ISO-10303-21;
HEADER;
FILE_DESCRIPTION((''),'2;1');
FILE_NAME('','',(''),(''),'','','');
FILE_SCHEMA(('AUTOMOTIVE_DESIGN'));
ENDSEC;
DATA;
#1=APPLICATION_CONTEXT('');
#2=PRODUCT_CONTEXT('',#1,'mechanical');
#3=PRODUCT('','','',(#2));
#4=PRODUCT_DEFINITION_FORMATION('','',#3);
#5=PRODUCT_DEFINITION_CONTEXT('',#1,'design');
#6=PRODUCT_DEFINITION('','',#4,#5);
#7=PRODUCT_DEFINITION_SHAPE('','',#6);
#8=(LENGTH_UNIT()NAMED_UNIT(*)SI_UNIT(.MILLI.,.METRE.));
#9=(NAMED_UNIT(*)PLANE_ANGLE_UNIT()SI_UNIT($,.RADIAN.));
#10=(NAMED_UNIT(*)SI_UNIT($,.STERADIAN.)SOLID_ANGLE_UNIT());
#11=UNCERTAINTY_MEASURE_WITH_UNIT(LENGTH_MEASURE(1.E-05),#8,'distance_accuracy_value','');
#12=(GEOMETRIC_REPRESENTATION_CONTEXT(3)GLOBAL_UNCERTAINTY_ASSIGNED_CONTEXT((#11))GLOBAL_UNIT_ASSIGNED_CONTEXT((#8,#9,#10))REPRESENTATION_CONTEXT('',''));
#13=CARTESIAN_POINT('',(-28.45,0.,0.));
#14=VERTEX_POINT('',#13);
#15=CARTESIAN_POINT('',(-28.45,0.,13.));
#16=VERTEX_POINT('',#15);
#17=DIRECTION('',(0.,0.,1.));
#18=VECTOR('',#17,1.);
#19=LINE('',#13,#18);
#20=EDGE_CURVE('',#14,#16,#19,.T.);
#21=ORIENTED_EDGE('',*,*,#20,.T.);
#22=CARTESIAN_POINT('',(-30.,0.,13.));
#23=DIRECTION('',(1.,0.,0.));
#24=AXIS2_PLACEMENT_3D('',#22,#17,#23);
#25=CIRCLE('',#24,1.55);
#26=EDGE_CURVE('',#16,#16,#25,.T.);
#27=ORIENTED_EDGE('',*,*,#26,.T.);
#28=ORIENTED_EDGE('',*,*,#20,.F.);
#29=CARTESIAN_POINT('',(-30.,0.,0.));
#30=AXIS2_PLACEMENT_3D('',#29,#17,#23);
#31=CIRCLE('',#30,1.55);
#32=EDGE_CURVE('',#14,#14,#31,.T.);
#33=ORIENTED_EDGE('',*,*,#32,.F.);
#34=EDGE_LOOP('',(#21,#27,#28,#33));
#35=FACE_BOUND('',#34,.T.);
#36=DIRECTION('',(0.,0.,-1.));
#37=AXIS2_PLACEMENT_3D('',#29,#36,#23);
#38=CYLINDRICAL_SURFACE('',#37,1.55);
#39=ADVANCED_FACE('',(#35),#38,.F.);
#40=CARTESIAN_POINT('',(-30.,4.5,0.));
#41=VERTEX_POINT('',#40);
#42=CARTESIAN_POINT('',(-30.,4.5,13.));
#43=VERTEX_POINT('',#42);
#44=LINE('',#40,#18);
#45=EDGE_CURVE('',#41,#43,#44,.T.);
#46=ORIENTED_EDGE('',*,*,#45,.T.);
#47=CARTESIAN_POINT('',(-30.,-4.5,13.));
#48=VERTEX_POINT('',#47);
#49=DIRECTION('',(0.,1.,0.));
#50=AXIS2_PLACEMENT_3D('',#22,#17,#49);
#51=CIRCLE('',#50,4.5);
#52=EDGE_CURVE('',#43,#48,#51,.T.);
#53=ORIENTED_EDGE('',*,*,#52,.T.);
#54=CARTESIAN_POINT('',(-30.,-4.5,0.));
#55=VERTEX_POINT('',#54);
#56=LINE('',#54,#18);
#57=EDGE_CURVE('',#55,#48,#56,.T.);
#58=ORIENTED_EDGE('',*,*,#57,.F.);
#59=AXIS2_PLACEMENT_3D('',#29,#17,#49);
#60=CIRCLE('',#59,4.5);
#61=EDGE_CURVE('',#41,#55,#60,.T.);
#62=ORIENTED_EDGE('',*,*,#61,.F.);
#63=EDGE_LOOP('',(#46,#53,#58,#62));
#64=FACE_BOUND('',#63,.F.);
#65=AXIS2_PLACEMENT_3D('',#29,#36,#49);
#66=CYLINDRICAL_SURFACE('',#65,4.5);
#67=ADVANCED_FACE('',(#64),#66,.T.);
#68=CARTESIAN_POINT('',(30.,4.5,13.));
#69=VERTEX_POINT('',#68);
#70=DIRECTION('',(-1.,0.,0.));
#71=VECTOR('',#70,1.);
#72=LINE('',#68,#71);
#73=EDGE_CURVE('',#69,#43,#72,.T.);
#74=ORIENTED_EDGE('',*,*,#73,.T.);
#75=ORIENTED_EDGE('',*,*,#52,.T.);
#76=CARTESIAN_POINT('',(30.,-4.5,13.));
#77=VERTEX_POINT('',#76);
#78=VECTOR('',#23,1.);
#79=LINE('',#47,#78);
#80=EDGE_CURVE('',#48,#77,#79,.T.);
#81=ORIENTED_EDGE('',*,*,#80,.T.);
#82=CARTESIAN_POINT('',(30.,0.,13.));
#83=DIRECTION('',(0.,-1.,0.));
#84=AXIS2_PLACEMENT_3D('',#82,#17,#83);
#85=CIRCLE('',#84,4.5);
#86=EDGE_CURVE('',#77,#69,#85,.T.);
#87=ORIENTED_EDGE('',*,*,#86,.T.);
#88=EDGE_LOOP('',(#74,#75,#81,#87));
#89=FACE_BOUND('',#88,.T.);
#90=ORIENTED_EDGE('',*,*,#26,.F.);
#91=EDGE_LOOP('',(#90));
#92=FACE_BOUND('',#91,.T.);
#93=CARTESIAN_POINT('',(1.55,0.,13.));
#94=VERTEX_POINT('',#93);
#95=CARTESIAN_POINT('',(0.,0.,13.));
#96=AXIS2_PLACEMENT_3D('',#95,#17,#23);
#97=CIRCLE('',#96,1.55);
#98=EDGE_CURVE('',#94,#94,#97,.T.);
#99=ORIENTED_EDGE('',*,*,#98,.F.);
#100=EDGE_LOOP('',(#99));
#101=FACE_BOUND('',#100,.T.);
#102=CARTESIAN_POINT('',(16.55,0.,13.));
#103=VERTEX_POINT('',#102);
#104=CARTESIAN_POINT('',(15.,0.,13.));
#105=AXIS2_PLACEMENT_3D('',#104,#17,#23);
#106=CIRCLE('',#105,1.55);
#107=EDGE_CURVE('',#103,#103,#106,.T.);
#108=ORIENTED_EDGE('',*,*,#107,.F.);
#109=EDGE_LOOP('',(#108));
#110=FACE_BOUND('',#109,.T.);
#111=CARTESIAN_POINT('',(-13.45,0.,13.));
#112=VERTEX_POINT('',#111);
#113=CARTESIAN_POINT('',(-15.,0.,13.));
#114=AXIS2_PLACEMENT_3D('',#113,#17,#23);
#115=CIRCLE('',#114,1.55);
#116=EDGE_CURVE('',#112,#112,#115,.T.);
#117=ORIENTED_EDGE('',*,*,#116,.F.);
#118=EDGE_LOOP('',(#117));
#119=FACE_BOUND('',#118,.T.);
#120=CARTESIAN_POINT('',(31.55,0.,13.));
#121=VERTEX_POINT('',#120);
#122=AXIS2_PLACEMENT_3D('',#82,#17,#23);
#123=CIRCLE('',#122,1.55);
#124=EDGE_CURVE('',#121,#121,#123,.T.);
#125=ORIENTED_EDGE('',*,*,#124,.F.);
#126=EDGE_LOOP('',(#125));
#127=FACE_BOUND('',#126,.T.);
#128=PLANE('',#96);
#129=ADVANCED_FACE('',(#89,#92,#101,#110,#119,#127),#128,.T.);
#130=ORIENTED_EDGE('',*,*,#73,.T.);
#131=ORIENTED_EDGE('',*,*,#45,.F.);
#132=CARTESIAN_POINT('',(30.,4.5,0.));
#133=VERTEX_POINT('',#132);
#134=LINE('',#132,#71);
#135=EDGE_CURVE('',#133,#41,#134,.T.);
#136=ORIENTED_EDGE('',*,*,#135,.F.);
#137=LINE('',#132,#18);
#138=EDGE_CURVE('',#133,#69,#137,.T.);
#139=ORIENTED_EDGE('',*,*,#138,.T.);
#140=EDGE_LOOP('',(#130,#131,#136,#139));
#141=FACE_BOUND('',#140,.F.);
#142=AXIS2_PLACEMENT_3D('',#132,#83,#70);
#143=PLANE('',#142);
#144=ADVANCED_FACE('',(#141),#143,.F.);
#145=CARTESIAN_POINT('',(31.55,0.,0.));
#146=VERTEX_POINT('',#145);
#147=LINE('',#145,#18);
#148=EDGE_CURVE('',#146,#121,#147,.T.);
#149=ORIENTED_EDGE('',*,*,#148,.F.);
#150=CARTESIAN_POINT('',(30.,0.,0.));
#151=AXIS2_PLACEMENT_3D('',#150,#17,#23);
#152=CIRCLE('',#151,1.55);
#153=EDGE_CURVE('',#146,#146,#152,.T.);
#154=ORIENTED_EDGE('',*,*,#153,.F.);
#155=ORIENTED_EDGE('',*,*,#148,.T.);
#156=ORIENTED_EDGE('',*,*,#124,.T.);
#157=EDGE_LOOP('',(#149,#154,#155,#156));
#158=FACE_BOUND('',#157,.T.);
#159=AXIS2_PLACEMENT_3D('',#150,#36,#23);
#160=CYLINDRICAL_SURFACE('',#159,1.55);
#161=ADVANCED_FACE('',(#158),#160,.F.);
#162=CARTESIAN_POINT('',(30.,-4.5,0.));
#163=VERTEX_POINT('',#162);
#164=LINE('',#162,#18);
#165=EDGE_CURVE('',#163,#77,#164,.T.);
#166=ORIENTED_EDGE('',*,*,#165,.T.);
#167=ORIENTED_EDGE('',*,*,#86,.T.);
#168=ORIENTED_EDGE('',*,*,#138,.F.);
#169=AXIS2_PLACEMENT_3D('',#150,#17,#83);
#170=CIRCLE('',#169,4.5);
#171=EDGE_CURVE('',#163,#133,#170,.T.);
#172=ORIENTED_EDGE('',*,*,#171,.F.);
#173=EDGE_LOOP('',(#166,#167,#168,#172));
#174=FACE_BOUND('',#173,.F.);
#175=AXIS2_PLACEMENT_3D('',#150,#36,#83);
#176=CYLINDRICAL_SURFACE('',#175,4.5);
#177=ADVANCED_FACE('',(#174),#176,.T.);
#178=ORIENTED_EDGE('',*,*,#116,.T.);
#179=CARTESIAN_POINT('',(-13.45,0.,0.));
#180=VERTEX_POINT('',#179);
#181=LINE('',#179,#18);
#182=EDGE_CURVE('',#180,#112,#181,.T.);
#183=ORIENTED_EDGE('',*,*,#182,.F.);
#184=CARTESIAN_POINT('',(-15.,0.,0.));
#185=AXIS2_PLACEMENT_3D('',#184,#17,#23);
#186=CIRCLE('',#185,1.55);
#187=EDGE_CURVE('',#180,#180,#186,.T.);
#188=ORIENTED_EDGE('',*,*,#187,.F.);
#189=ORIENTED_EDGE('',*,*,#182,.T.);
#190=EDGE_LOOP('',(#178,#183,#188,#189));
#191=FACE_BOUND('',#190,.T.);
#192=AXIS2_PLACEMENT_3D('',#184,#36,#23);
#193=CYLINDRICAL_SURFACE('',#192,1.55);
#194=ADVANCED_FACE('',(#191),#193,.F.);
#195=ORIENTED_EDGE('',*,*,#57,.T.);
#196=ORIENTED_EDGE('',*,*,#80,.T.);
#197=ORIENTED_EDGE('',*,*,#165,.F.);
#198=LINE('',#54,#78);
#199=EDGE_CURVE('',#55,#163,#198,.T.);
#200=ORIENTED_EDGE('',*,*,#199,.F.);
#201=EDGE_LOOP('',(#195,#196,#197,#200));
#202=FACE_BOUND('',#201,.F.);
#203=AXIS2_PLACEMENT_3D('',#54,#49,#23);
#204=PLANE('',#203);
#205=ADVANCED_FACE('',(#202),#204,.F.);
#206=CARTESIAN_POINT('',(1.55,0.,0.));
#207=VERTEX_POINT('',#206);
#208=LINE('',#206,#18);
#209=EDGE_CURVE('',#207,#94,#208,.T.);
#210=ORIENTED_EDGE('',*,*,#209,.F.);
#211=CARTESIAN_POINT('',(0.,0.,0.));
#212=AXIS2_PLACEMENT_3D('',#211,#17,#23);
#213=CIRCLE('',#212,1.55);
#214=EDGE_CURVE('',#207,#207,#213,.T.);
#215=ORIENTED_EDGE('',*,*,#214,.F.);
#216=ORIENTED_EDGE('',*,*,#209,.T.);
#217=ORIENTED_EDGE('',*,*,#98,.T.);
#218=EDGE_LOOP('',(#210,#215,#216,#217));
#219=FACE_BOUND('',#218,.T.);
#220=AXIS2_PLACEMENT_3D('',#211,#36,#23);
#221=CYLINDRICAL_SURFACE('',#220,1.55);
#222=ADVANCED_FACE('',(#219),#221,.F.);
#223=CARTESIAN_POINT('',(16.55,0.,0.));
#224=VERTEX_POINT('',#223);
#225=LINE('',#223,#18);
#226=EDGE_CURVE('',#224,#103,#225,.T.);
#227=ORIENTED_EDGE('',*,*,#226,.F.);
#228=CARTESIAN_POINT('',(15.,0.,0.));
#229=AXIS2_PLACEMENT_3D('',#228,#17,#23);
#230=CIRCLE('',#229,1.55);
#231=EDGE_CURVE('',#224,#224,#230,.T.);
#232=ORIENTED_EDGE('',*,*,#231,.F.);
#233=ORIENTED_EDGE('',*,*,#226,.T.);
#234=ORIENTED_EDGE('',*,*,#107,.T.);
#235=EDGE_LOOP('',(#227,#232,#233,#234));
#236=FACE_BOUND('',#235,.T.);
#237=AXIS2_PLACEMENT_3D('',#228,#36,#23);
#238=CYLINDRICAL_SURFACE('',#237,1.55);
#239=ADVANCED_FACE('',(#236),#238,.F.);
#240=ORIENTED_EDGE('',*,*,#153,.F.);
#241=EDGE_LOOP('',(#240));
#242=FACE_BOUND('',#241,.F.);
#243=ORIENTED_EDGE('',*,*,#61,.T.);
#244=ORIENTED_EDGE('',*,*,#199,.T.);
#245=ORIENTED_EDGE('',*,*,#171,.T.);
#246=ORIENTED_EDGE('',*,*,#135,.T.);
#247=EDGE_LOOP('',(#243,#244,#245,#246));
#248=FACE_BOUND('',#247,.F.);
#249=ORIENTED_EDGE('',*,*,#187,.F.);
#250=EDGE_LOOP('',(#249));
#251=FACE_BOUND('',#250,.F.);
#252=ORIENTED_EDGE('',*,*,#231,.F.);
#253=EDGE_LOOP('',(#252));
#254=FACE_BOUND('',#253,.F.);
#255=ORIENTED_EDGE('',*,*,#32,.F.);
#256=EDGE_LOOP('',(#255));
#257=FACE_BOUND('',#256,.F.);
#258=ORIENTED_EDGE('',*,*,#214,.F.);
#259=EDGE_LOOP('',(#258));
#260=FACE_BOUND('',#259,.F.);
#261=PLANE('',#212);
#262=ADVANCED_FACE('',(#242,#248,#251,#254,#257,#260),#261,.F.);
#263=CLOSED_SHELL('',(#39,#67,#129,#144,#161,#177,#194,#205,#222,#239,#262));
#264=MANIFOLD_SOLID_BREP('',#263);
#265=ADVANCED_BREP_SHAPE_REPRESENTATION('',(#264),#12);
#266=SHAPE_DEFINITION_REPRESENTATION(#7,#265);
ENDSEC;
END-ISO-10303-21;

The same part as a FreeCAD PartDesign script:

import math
import FreeCAD as App
import Part
import Sketcher

doc = App.newDocument("Part")
body = doc.addObject("PartDesign::Body", "Body")

# Sketch on XY plane
sketch1 = doc.addObject("Sketcher::SketchObject", "Sketch")
body.addObject(sketch1)
sketch1.AttachmentSupport = (doc.XY_Plane, [""])
sketch1.MapMode = "FlatFace"
sketch1.addGeometry([
    Part.ArcOfCircle(Part.Circle(App.Vector(-30, 0, 0), App.Vector(0, 0, 1), 4.5), math.radians(90), math.radians(270)),  # 0
    Part.LineSegment(App.Vector(-30, -4.5, 0), App.Vector(30, -4.5, 0)),  # 1
    Part.ArcOfCircle(Part.Circle(App.Vector(30, 0, 0), App.Vector(0, 0, 1), 4.5), math.radians(-90), math.radians(90)),  # 2
    Part.LineSegment(App.Vector(30, 4.5, 0), App.Vector(-30, 4.5, 0)),  # 3
    Part.Circle(App.Vector(-30, 0, 0), App.Vector(0, 0, 1), 1.6),  # 4
    Part.Circle(App.Vector(-15, 0, 0), App.Vector(0, 0, 1), 1.6),  # 5
    Part.Circle(App.Vector(0, 0, 0), App.Vector(0, 0, 1), 1.6),  # 6
    Part.Circle(App.Vector(15, 0, 0), App.Vector(0, 0, 1), 1.6),  # 7
    Part.Circle(App.Vector(30, 0, 0), App.Vector(0, 0, 1), 1.6),  # 8
], False)
sketch1.addConstraint([
    Sketcher.Constraint("Tangent", 0, 2, 1, 1),
    Sketcher.Constraint("Tangent", 1, 2, 2, 1),
    Sketcher.Constraint("Tangent", 2, 2, 3, 1),
    Sketcher.Constraint("Tangent", 3, 2, 0, 1),
    Sketcher.Constraint("Horizontal", 1),
    Sketcher.Constraint("Horizontal", 3),
    Sketcher.Constraint("Coincident", 6, 3, -1, 1),
    Sketcher.Constraint("Coincident", 4, 3, 0, 3),
    Sketcher.Constraint("Coincident", 8, 3, 2, 3),
    Sketcher.Constraint("Equal", 4, 5),
    Sketcher.Constraint("Equal", 5, 6),
    Sketcher.Constraint("Equal", 6, 7),
    Sketcher.Constraint("Equal", 7, 8),
    Sketcher.Constraint("Symmetric", 0, 3, 2, 3, -1, 1),
    Sketcher.Constraint("Symmetric", 5, 3, 7, 3, -1, 1),
    Sketcher.Constraint("PointOnObject", 5, 3, -1),
    Sketcher.Constraint("Diameter", 4, 3.1),
    Sketcher.Constraint("Radius", 0, 4.5),
    Sketcher.Constraint("DistanceX", 1, 1, 1, 2, 60.0),
    Sketcher.Constraint("DistanceX", 5, 3, -1, 1, 15.0),
])
pad1 = doc.addObject("PartDesign::Pad", "Pad")
body.addObject(pad1)
pad1.Profile = sketch1
pad1.Length = 13

doc.recompute()
